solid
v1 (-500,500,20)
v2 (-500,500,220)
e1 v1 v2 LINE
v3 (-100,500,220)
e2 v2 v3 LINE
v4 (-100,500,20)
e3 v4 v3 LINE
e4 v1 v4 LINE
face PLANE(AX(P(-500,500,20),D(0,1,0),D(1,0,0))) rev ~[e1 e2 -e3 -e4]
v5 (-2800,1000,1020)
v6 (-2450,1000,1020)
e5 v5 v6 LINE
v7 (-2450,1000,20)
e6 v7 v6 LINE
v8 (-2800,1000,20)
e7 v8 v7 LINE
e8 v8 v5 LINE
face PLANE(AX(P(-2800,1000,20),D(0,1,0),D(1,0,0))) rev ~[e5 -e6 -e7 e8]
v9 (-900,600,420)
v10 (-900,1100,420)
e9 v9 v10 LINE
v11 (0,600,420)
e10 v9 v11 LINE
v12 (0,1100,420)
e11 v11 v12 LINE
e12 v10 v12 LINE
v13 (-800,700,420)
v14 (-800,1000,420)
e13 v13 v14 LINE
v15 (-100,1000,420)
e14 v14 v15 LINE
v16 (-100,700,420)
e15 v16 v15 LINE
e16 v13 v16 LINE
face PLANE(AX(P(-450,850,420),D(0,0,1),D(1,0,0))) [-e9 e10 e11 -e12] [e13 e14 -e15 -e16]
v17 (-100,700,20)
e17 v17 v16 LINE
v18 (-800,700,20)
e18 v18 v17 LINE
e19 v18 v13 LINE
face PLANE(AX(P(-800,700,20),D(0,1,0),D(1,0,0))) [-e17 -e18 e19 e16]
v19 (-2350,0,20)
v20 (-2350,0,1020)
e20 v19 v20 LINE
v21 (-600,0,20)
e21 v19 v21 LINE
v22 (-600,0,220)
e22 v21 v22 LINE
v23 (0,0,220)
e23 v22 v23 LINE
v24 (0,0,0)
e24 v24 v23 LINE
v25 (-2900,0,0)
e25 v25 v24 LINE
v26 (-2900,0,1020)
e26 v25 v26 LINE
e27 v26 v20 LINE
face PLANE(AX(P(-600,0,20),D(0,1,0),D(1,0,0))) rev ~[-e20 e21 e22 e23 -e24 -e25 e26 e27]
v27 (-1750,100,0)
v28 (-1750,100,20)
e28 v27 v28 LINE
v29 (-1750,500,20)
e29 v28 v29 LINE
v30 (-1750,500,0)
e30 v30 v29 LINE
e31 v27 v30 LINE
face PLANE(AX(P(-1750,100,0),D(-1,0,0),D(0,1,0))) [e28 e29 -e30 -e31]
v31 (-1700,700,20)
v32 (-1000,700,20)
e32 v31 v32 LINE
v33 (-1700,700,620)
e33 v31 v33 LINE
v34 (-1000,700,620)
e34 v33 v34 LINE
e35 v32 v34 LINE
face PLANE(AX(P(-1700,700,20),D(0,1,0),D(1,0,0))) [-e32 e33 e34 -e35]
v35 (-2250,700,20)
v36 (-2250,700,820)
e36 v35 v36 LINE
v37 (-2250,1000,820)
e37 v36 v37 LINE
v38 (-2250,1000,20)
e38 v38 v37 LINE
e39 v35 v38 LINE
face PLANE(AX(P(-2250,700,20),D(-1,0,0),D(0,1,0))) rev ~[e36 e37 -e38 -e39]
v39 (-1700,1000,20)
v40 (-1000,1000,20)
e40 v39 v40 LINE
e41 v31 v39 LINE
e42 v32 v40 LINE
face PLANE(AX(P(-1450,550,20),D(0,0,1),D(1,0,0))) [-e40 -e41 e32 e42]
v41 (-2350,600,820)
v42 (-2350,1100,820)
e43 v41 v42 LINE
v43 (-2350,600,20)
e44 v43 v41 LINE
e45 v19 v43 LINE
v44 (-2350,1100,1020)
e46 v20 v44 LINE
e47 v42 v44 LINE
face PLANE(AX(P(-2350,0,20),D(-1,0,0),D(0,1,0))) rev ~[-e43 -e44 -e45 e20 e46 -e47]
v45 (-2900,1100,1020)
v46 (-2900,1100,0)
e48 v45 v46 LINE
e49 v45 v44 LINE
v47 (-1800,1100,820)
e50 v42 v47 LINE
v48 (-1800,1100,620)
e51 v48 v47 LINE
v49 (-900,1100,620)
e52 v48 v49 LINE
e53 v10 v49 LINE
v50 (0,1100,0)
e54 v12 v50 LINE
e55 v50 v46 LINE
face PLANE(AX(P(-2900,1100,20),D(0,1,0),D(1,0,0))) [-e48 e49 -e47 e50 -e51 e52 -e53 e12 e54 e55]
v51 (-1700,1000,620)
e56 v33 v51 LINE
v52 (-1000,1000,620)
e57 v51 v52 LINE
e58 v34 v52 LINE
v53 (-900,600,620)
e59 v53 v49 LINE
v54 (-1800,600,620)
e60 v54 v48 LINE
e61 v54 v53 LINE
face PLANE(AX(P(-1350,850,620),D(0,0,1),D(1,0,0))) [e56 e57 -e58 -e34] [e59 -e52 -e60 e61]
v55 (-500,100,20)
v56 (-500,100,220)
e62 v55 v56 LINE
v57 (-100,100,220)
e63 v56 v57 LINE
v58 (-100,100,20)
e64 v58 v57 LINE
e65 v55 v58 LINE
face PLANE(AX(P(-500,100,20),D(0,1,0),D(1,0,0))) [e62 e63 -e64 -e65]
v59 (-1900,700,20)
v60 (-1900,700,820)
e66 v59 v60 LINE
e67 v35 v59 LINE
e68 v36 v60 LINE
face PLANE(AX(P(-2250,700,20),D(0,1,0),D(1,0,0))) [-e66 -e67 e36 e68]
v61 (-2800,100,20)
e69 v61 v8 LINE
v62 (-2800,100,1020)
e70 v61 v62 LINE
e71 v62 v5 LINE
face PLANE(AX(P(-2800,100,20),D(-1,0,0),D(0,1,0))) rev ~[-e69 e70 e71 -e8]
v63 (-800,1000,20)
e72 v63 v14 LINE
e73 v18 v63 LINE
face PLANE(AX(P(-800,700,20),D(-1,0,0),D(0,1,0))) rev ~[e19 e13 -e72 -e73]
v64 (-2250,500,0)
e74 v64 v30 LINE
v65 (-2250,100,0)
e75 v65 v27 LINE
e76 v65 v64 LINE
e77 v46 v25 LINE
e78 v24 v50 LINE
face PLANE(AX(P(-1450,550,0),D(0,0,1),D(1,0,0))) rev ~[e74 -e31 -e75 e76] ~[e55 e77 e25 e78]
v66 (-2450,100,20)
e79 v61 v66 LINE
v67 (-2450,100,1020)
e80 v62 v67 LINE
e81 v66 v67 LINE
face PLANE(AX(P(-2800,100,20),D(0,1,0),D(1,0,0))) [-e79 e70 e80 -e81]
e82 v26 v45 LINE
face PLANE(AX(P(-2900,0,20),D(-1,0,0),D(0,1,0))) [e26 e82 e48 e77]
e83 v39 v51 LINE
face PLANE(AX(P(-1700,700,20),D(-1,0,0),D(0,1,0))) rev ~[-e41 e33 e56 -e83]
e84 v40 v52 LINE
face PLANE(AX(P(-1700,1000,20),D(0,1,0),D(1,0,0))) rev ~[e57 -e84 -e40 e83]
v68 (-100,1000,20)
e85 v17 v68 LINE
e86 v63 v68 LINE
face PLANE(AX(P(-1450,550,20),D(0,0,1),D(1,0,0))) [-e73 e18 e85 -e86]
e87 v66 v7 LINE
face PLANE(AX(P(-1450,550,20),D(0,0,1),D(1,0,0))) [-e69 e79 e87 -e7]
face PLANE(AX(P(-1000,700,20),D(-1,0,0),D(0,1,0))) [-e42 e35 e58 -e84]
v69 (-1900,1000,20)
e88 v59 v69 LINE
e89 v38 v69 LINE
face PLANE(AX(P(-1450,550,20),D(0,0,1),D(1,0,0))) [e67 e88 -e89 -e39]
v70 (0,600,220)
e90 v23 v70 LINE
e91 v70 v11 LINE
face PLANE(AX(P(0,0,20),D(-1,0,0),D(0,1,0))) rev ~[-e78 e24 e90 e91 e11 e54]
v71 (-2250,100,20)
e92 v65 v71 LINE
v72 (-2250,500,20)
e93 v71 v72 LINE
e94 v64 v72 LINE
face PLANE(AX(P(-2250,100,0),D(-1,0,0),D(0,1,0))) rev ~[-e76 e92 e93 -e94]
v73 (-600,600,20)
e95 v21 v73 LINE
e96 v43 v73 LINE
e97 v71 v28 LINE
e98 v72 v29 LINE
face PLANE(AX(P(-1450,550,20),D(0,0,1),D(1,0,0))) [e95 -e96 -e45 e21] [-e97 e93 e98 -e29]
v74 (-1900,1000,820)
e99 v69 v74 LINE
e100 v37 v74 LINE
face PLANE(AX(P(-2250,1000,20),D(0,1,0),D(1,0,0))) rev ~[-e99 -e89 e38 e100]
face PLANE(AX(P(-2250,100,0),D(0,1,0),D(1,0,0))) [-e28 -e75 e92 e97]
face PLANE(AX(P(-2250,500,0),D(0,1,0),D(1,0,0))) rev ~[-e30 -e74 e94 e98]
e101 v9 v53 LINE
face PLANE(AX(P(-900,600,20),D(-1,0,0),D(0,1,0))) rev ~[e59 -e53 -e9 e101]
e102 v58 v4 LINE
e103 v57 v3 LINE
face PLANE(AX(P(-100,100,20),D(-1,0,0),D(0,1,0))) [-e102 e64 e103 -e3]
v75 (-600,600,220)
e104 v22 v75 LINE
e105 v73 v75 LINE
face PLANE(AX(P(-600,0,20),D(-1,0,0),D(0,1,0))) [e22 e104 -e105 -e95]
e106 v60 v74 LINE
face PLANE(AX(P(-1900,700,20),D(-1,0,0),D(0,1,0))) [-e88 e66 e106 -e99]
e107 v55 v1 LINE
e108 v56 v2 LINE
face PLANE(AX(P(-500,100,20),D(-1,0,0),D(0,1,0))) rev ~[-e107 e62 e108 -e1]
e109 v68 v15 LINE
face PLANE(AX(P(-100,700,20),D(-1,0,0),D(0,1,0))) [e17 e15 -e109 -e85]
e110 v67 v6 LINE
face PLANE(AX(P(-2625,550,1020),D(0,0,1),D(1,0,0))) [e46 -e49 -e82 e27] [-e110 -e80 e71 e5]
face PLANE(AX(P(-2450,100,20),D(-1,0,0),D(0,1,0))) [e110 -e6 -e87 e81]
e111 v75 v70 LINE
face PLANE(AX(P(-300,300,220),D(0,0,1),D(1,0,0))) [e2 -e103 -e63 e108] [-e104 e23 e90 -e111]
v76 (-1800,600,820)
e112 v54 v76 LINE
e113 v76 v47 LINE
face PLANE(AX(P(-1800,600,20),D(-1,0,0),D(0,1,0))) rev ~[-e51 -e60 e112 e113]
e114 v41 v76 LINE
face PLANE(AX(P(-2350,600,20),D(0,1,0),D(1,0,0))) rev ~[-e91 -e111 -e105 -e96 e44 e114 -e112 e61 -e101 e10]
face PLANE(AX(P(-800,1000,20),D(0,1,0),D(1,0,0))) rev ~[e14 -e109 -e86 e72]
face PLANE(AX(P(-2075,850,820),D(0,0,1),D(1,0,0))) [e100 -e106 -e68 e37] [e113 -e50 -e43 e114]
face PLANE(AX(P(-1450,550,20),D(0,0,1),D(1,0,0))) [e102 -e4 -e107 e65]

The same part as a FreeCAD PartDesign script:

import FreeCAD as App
import Part
import Sketcher

V = App.Vector
Q = App.Units.Quantity

doc = App.newDocument("Part")
body = doc.addObject("PartDesign::Body", "Body")

# Sketch on XY plane
sketch1 = body.newObject("Sketcher::SketchObject", "Sketch")
sketch1.AttachmentSupport = (doc.getObject("XY_Plane"), [""])
sketch1.MapMode = "FlatFace"
sketch1.addGeometry(Part.LineSegment(V(0, 0, 0), V(0, 1100, 0)), False)
sketch1.addGeometry(Part.LineSegment(V(0, 1100, 0), V(-2900, 1100, 0)), False)
sketch1.addGeometry(Part.LineSegment(V(-2900, 1100, 0), V(-2900, 0, 0)), False)
sketch1.addGeometry(Part.LineSegment(V(-2900, 0, 0), V(0, 0, 0)), False)
sketch1.addGeometry(Part.LineSegment(V(-1750, 100, 0), V(-2250, 100, 0)), False)
sketch1.addGeometry(Part.LineSegment(V(-2250, 100, 0), V(-2250, 500, 0)), False)
sketch1.addGeometry(Part.LineSegment(V(-2250, 500, 0), V(-1750, 500, 0)), False)
sketch1.addGeometry(Part.LineSegment(V(-1750, 500, 0), V(-1750, 100, 0)), False)
sketch1.addConstraint(Sketcher.Constraint("Coincident", 0, 2, 1, 1))
sketch1.addConstraint(Sketcher.Constraint("Coincident", 1, 2, 2, 1))
sketch1.addConstraint(Sketcher.Constraint("Coincident", 2, 2, 3, 1))
sketch1.addConstraint(Sketcher.Constraint("Coincident", 3, 2, 0, 1))
sketch1.addConstraint(Sketcher.Constraint("Coincident", 4, 2, 5, 1))
sketch1.addConstraint(Sketcher.Constraint("Coincident", 5, 2, 6, 1))
sketch1.addConstraint(Sketcher.Constraint("Coincident", 6, 2, 7, 1))
sketch1.addConstraint(Sketcher.Constraint("Coincident", 7, 2, 4, 1))
sketch1.addConstraint(Sketcher.Constraint("Vertical", 0))
sketch1.addConstraint(Sketcher.Constraint("Horizontal", 1))
sketch1.addConstraint(Sketcher.Constraint("Vertical", 2))
sketch1.addConstraint(Sketcher.Constraint("Horizontal", 3))
sketch1.addConstraint(Sketcher.Constraint("Horizontal", 4))
sketch1.addConstraint(Sketcher.Constraint("Vertical", 5))
sketch1.addConstraint(Sketcher.Constraint("Horizontal", 6))
sketch1.addConstraint(Sketcher.Constraint("Vertical", 7))
sketch1.addConstraint(Sketcher.Constraint("Coincident", 3, 2, -1, 1))
sketch1.addConstraint(Sketcher.Constraint("DistanceX", 1, 2, 1, 1, Q("2900 mm")))
sketch1.addConstraint(Sketcher.Constraint("DistanceX", 4, 2, 4, 1, Q("500 mm")))
sketch1.addConstraint(Sketcher.Constraint("DistanceY", 0, 1, 0, 2, Q("1100 mm")))
sketch1.addConstraint(Sketcher.Constraint("DistanceY", 5, 1, 5, 2, Q("400 mm")))
sketch1.addConstraint(Sketcher.Constraint("DistanceX", 4, 2, -1, 1, Q("2250 mm")))
sketch1.addConstraint(Sketcher.Constraint("DistanceY", -1, 1, 4, 2, Q("100 mm")))
pad1 = body.newObject("PartDesign::Pad", "Pad")
pad1.Profile = sketch1
pad1.Length = 20

# Sketch on XY plane
sketch2 = body.newObject("Sketcher::SketchObject", "Sketch001")
sketch2.AttachmentSupport = (doc.getObject("XY_Plane"), [""])
sketch2.MapMode = "FlatFace"
sketch2.AttachmentOffset = App.Placement(V(0, 0, 20), App.Rotation())
sketch2.addGeometry(Part.LineSegment(V(-900, 1100, 0), V(-900, 600, 0)), False)
sketch2.addGeometry(Part.LineSegment(V(-900, 600, 0), V(0, 600, 0)), False)
sketch2.addGeometry(Part.LineSegment(V(0, 600, 0), V(0, 1100, 0)), False)
sketch2.addGeometry(Part.LineSegment(V(0, 1100, 0), V(-900, 1100, 0)), False)
sketch2.addGeometry(Part.LineSegment(V(-100, 700, 0), V(-800, 700, 0)), False)
sketch2.addGeometry(Part.LineSegment(V(-800, 700, 0), V(-800, 1000, 0)), False)
sketch2.addGeometry(Part.LineSegment(V(-800, 1000, 0), V(-100, 1000, 0)), False)
sketch2.addGeometry(Part.LineSegment(V(-100, 1000, 0), V(-100, 700, 0)), False)
sketch2.addConstraint(Sketcher.Constraint("Coincident", 0, 2, 1, 1))
sketch2.addConstraint(Sketcher.Constraint("Coincident", 1, 2, 2, 1))
sketch2.addConstraint(Sketcher.Constraint("Coincident", 2, 2, 3, 1))
sketch2.addConstraint(Sketcher.Constraint("Coincident", 3, 2, 0, 1))
sketch2.addConstraint(Sketcher.Constraint("Coincident", 4, 2, 5, 1))
sketch2.addConstraint(Sketcher.Constraint("Coincident", 5, 2, 6, 1))
sketch2.addConstraint(Sketcher.Constraint("Coincident", 6, 2, 7, 1))
sketch2.addConstraint(Sketcher.Constraint("Coincident", 7, 2, 4, 1))
sketch2.addConstraint(Sketcher.Constraint("Vertical", 0))
sketch2.addConstraint(Sketcher.Constraint("Horizontal", 1))
sketch2.addConstraint(Sketcher.Constraint("Vertical", 2))
sketch2.addConstraint(Sketcher.Constraint("Horizontal", 3))
sketch2.addConstraint(Sketcher.Constraint("Horizontal", 4))
sketch2.addConstraint(Sketcher.Constraint("Vertical", 5))
sketch2.addConstraint(Sketcher.Constraint("Horizontal", 6))
sketch2.addConstraint(Sketcher.Constraint("Vertical", 7))
sketch2.addConstraint(Sketcher.Constraint("PointOnObject", 1, 2, -2))
sketch2.addConstraint(Sketcher.Constraint("DistanceX", 1, 1, 1, 2, Q("900 mm")))
sketch2.addConstraint(Sketcher.Constraint("DistanceX", 4, 2, 4, 1, Q("700 mm")))
sketch2.addConstraint(Sketcher.Constraint("DistanceY", 0, 2, 0, 1, Q("500 mm")))
sketch2.addConstraint(Sketcher.Constraint("DistanceY", 5, 1, 5, 2, Q("300 mm")))
sketch2.addConstraint(Sketcher.Constraint("DistanceY", -1, 1, 0, 2, Q("600 mm")))
sketch2.addConstraint(Sketcher.Constraint("DistanceX", 4, 2, -1, 1, Q("800 mm")))
sketch2.addConstraint(Sketcher.Constraint("DistanceY", -1, 1, 4, 2, Q("700 mm")))
pad2 = body.newObject("PartDesign::Pad", "Pad001")
pad2.Profile = sketch2
pad2.Length = 400

# Sketch on XY plane
sketch3 = body.newObject("Sketcher::SketchObject", "Sketch002")
sketch3.AttachmentSupport = (doc.getObject("XY_Plane"), [""])
sketch3.MapMode = "FlatFace"
sketch3.AttachmentOffset = App.Placement(V(0, 0, 20), App.Rotation())
sketch3.addGeometry(Part.LineSegment(V(-1800, 1100, 0), V(-1800, 600, 0)), False)
sketch3.addGeometry(Part.LineSegment(V(-1800, 600, 0), V(-900, 600, 0)), False)
sketch3.addGeometry(Part.LineSegment(V(-900, 600, 0), V(-900, 1100, 0)), False)
sketch3.addGeometry(Part.LineSegment(V(-900, 1100, 0), V(-1800, 1100, 0)), False)
sketch3.addGeometry(Part.LineSegment(V(-1000, 700, 0), V(-1700, 700, 0)), False)
sketch3.addGeometry(Part.LineSegment(V(-1700, 700, 0), V(-1700, 1000, 0)), False)
sketch3.addGeometry(Part.LineSegment(V(-1700, 1000, 0), V(-1000, 1000, 0)), False)
sketch3.addGeometry(Part.LineSegment(V(-1000, 1000, 0), V(-1000, 700, 0)), False)
sketch3.addConstraint(Sketcher.Constraint("Coincident", 0, 2, 1, 1))
sketch3.addConstraint(Sketcher.Constraint("Coincident", 1, 2, 2, 1))
sketch3.addConstraint(Sketcher.Constraint("Coincident", 2, 2, 3, 1))
sketch3.addConstraint(Sketcher.Constraint("Coincident", 3, 2, 0, 1))
sketch3.addConstraint(Sketcher.Constraint("Coincident", 4, 2, 5, 1))
sketch3.addConstraint(Sketcher.Constraint("Coincident", 5, 2, 6, 1))
sketch3.addConstraint(Sketcher.Constraint("Coincident", 6, 2, 7, 1))
sketch3.addConstraint(Sketcher.Constraint("Coincident", 7, 2, 4, 1))
sketch3.addConstraint(Sketcher.Constraint("Vertical", 0))
sketch3.addConstraint(Sketcher.Constraint("Horizontal", 1))
sketch3.addConstraint(Sketcher.Constraint("Vertical", 2))
sketch3.addConstraint(Sketcher.Constraint("Horizontal", 3))
sketch3.addConstraint(Sketcher.Constraint("Horizontal", 4))
sketch3.addConstraint(Sketcher.Constraint("Vertical", 5))
sketch3.addConstraint(Sketcher.Constraint("Horizontal", 6))
sketch3.addConstraint(Sketcher.Constraint("Vertical", 7))
sketch3.addConstraint(Sketcher.Constraint("DistanceX", 1, 1, 1, 2, Q("900 mm")))
sketch3.addConstraint(Sketcher.Constraint("DistanceX", 4, 2, 4, 1, Q("700 mm")))
sketch3.addConstraint(Sketcher.Constraint("DistanceY", 0, 2, 0, 1, Q("500 mm")))
sketch3.addConstraint(Sketcher.Constraint("DistanceY", 5, 1, 5, 2, Q("300 mm")))
sketch3.addConstraint(Sketcher.Constraint("DistanceX", 0, 2, -1, 1, Q("1800 mm")))
sketch3.addConstraint(Sketcher.Constraint("DistanceY", -1, 1, 0, 2, Q("600 mm")))
sketch3.addConstraint(Sketcher.Constraint("DistanceX", 4, 2, -1, 1, Q("1700 mm")))
sketch3.addConstraint(Sketcher.Constraint("DistanceY", -1, 1, 4, 2, Q("700 mm")))
pad3 = body.newObject("PartDesign::Pad", "Pad002")
pad3.Profile = sketch3
pad3.Length = 600

# Sketch on XY plane
sketch4 = body.newObject("Sketcher::SketchObject", "Sketch003")
sketch4.AttachmentSupport = (doc.getObject("XY_Plane"), [""])
sketch4.MapMode = "FlatFace"
sketch4.AttachmentOffset = App.Placement(V(0, 0, 20), App.Rotation())
sketch4.addGeometry(Part.LineSegment(V(-2350, 1100, 0), V(-2350, 600, 0)), False)
sketch4.addGeometry(Part.LineSegment(V(-2350, 600, 0), V(-1800, 600, 0)), False)
sketch4.addGeometry(Part.LineSegment(V(-1800, 600, 0), V(-1800, 1100, 0)), False)
sketch4.addGeometry(Part.LineSegment(V(-1800, 1100, 0), V(-2350, 1100, 0)), False)
sketch4.addGeometry(Part.LineSegment(V(-1900, 700, 0), V(-2250, 700, 0)), False)
sketch4.addGeometry(Part.LineSegment(V(-2250, 700, 0), V(-2250, 1000, 0)), False)
sketch4.addGeometry(Part.LineSegment(V(-2250, 1000, 0), V(-1900, 1000, 0)), False)
sketch4.addGeometry(Part.LineSegment(V(-1900, 1000, 0), V(-1900, 700, 0)), False)
sketch4.addConstraint(Sketcher.Constraint("Coincident", 0, 2, 1, 1))
sketch4.addConstraint(Sketcher.Constraint("Coincident", 1, 2, 2, 1))
sketch4.addConstraint(Sketcher.Constraint("Coincident", 2, 2, 3, 1))
sketch4.addConstraint(Sketcher.Constraint("Coincident", 3, 2, 0, 1))
sketch4.addConstraint(Sketcher.Constraint("Coincident", 4, 2, 5, 1))
sketch4.addConstraint(Sketcher.Constraint("Coincident", 5, 2, 6, 1))
sketch4.addConstraint(Sketcher.Constraint("Coincident", 6, 2, 7, 1))
sketch4.addConstraint(Sketcher.Constraint("Coincident", 7, 2, 4, 1))
sketch4.addConstraint(Sketcher.Constraint("Vertical", 0))
sketch4.addConstraint(Sketcher.Constraint("Horizontal", 1))
sketch4.addConstraint(Sketcher.Constraint("Vertical", 2))
sketch4.addConstraint(Sketcher.Constraint("Horizontal", 3))
sketch4.addConstraint(Sketcher.Constraint("Horizontal", 4))
sketch4.addConstraint(Sketcher.Constraint("Vertical", 5))
sketch4.addConstraint(Sketcher.Constraint("Horizontal", 6))
sketch4.addConstraint(Sketcher.Constraint("Vertical", 7))
sketch4.addConstraint(Sketcher.Constraint("DistanceX", 1, 1, 1, 2, Q("550 mm")))
sketch4.addConstraint(Sketcher.Constraint("DistanceX", 4, 2, 4, 1, Q("350 mm")))
sketch4.addConstraint(Sketcher.Constraint("DistanceY", 0, 2, 0, 1, Q("500 mm")))
sketch4.addConstraint(Sketcher.Constraint("DistanceY", 5, 1, 5, 2, Q("300 mm")))
sketch4.addConstraint(Sketcher.Constraint("DistanceX", 0, 2, -1, 1, Q("2350 mm")))
sketch4.addConstraint(Sketcher.Constraint("DistanceY", -1, 1, 0, 2, Q("600 mm")))
sketch4.addConstraint(Sketcher.Constraint("DistanceX", 4, 2, -1, 1, Q("2250 mm")))
sketch4.addConstraint(Sketcher.Constraint("DistanceY", -1, 1, 4, 2, Q("700 mm")))
pad4 = body.newObject("PartDesign::Pad", "Pad003")
pad4.Profile = sketch4
pad4.Length = 800

# Sketch on XY plane
sketch5 = body.newObject("Sketcher::SketchObject", "Sketch004")
sketch5.AttachmentSupport = (doc.getObject("XY_Plane"), [""])
sketch5.MapMode = "FlatFace"
sketch5.AttachmentOffset = App.Placement(V(0, 0, 20), App.Rotation())
sketch5.addGeometry(Part.LineSegment(V(-2900, 1100, 0), V(-2900, 0, 0)), False)
sketch5.addGeometry(Part.LineSegment(V(-2900, 0, 0), V(-2350, 0, 0)), False)
sketch5.addGeometry(Part.LineSegment(V(-2350, 0, 0), V(-2350, 1100, 0)), False)
sketch5.addGeometry(Part.LineSegment(V(-2350, 1100, 0), V(-2900, 1100, 0)), False)
sketch5.addGeometry(Part.LineSegment(V(-2450, 100, 0), V(-2800, 100, 0)), False)
sketch5.addGeometry(Part.LineSegment(V(-2800, 100, 0), V(-2800, 1000, 0)), False)
sketch5.addGeometry(Part.LineSegment(V(-2800, 1000, 0), V(-2450, 1000, 0)), False)
sketch5.addGeometry(Part.LineSegment(V(-2450, 1000, 0), V(-2450, 100, 0)), False)
sketch5.addConstraint(Sketcher.Constraint("Coincident", 0, 2, 1, 1))
sketch5.addConstraint(Sketcher.Constraint("Coincident", 1, 2, 2, 1))
sketch5.addConstraint(Sketcher.Constraint("Coincident", 2, 2, 3, 1))
sketch5.addConstraint(Sketcher.Constraint("Coincident", 3, 2, 0, 1))
sketch5.addConstraint(Sketcher.Constraint("Coincident", 4, 2, 5, 1))
sketch5.addConstraint(Sketcher.Constraint("Coincident", 5, 2, 6, 1))
sketch5.addConstraint(Sketcher.Constraint("Coincident", 6, 2, 7, 1))
sketch5.addConstraint(Sketcher.Constraint("Coincident", 7, 2, 4, 1))
sketch5.addConstraint(Sketcher.Constraint("Vertical", 0))
sketch5.addConstraint(Sketcher.Constraint("Horizontal", 1))
sketch5.addConstraint(Sketcher.Constraint("Vertical", 2))
sketch5.addConstraint(Sketcher.Constraint("Horizontal", 3))
sketch5.addConstraint(Sketcher.Constraint("Horizontal", 4))
sketch5.addConstraint(Sketcher.Constraint("Vertical", 5))
sketch5.addConstraint(Sketcher.Constraint("Horizontal", 6))
sketch5.addConstraint(Sketcher.Constraint("Vertical", 7))
sketch5.addConstraint(Sketcher.Constraint("PointOnObject", 0, 2, -1))
sketch5.addConstraint(Sketcher.Constraint("DistanceX", 1, 1, 1, 2, Q("550 mm")))
sketch5.addConstraint(Sketcher.Constraint("DistanceX", 4, 2, 4, 1, Q("350 mm")))
sketch5.addConstraint(Sketcher.Constraint("DistanceY", 0, 2, 0, 1, Q("1100 mm")))
sketch5.addConstraint(Sketcher.Constraint("DistanceY", 5, 1, 5, 2, Q("900 mm")))
sketch5.addConstraint(Sketcher.Constraint("DistanceX", 0, 2, -1, 1, Q("2900 mm")))
sketch5.addConstraint(Sketcher.Constraint("DistanceX", 4, 2, -1, 1, Q("2800 mm")))
sketch5.addConstraint(Sketcher.Constraint("DistanceY", -1, 1, 4, 2, Q("100 mm")))
pad5 = body.newObject("PartDesign::Pad", "Pad004")
pad5.Profile = sketch5
pad5.Length = 1000

# Sketch on XY plane
sketch6 = body.newObject("Sketcher::SketchObject", "Sketch005")
sketch6.AttachmentSupport = (doc.getObject("XY_Plane"), [""])
sketch6.MapMode = "FlatFace"
sketch6.AttachmentOffset = App.Placement(V(0, 0, 20), App.Rotation())
sketch6.addGeometry(Part.LineSegment(V(-600, 600, 0), V(-600, 0, 0)), False)
sketch6.addGeometry(Part.LineSegment(V(-600, 0, 0), V(0, 0, 0)), False)
sketch6.addGeometry(Part.LineSegment(V(0, 0, 0), V(0, 600, 0)), False)
sketch6.addGeometry(Part.LineSegment(V(0, 600, 0), V(-600, 600, 0)), False)
sketch6.addGeometry(Part.LineSegment(V(-100, 100, 0), V(-500, 100, 0)), False)
sketch6.addGeometry(Part.LineSegment(V(-500, 100, 0), V(-500, 500, 0)), False)
sketch6.addGeometry(Part.LineSegment(V(-500, 500, 0), V(-100, 500, 0)), False)
sketch6.addGeometry(Part.LineSegment(V(-100, 500, 0), V(-100, 100, 0)), False)
sketch6.addConstraint(Sketcher.Constraint("Coincident", 0, 2, 1, 1))
sketch6.addConstraint(Sketcher.Constraint("Coincident", 1, 2, 2, 1))
sketch6.addConstraint(Sketcher.Constraint("Coincident", 2, 2, 3, 1))
sketch6.addConstraint(Sketcher.Constraint("Coincident", 3, 2, 0, 1))
sketch6.addConstraint(Sketcher.Constraint("Coincident", 4, 2, 5, 1))
sketch6.addConstraint(Sketcher.Constraint("Coincident", 5, 2, 6, 1))
sketch6.addConstraint(Sketcher.Constraint("Coincident", 6, 2, 7, 1))
sketch6.addConstraint(Sketcher.Constraint("Coincident", 7, 2, 4, 1))
sketch6.addConstraint(Sketcher.Constraint("Vertical", 0))
sketch6.addConstraint(Sketcher.Constraint("Horizontal", 1))
sketch6.addConstraint(Sketcher.Constraint("Vertical", 2))
sketch6.addConstraint(Sketcher.Constraint("Horizontal", 3))
sketch6.addConstraint(Sketcher.Constraint("Horizontal", 4))
sketch6.addConstraint(Sketcher.Constraint("Vertical", 5))
sketch6.addConstraint(Sketcher.Constraint("Horizontal", 6))
sketch6.addConstraint(Sketcher.Constraint("Vertical", 7))
sketch6.addConstraint(Sketcher.Constraint("Coincident", 1, 2, -1, 1))
sketch6.addConstraint(Sketcher.Constraint("Equal", 3, 0))
sketch6.addConstraint(Sketcher.Constraint("Equal", 6, 5))
sketch6.addConstraint(Sketcher.Constraint("DistanceX", 1, 1, 1, 2, Q("600 mm")))
sketch6.addConstraint(Sketcher.Constraint("DistanceX", 4, 2, 4, 1, Q("400 mm")))
sketch6.addConstraint(Sketcher.Constraint("DistanceX", 4, 2, -1, 1, Q("500 mm")))
sketch6.addConstraint(Sketcher.Constraint("DistanceY", -1, 1, 4, 2, Q("100 mm")))
pad6 = body.newObject("PartDesign::Pad", "Pad005")
pad6.Profile = sketch6
pad6.Length = 200

doc.recompute()
